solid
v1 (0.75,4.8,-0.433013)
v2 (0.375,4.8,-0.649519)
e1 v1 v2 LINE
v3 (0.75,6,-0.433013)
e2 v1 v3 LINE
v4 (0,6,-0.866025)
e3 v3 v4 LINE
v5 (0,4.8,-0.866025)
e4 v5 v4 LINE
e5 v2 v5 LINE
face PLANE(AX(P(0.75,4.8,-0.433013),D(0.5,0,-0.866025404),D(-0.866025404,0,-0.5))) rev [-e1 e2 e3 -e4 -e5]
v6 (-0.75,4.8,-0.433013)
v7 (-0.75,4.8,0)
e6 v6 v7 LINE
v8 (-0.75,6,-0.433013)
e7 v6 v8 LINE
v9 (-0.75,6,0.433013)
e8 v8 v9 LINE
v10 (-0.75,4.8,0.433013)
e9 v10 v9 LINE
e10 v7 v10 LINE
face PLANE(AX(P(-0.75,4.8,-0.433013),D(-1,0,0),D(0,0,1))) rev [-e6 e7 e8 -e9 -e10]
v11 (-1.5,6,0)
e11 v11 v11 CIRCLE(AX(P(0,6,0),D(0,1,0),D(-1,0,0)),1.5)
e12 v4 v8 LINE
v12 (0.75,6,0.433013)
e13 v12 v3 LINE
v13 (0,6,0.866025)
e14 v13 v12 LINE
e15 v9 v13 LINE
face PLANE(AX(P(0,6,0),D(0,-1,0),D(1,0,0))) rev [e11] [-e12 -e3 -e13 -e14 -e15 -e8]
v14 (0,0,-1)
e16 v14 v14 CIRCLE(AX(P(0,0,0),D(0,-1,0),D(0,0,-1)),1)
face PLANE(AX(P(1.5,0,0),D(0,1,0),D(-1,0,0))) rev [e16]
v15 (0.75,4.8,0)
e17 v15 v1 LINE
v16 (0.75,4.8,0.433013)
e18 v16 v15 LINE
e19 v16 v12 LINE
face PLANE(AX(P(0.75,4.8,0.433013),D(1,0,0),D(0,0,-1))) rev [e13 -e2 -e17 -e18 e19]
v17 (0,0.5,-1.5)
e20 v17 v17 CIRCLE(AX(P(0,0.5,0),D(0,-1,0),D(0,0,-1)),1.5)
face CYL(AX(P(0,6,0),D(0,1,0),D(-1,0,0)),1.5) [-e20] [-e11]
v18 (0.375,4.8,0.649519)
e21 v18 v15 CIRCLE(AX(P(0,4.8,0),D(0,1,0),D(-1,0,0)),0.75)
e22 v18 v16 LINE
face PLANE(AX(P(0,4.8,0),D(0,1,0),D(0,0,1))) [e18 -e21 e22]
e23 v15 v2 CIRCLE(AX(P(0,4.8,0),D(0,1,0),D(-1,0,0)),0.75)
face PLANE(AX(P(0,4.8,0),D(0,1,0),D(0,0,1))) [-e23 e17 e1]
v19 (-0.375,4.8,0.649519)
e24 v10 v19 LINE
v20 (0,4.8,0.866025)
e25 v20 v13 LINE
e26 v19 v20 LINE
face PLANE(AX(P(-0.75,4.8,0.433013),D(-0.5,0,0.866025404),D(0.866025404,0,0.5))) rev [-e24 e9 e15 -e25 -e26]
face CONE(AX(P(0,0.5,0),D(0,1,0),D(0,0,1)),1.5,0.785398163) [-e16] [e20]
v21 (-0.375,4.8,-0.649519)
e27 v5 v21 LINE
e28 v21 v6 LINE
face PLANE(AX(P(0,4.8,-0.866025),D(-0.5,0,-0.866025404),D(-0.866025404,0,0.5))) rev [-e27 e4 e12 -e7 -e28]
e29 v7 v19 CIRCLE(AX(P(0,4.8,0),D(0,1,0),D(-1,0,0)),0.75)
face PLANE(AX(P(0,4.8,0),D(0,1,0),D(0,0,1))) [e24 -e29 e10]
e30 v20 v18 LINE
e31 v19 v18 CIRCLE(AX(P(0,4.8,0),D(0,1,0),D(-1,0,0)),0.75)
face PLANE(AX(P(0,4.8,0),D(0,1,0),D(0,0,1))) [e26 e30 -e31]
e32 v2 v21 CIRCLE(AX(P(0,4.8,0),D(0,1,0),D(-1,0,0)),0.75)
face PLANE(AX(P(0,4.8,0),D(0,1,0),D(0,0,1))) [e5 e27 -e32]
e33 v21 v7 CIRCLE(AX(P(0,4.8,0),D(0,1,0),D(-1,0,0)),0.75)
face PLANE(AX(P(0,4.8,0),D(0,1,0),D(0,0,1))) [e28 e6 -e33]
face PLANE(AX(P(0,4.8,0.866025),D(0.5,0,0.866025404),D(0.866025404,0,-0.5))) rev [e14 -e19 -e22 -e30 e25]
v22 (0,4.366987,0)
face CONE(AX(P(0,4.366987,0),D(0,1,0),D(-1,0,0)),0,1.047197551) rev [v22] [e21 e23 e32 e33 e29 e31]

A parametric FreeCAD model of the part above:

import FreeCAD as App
import Part
import Sketcher

V = App.Vector
Q = App.Units.Quantity


def add_polygon(sketch, points):
    """Adds a closed chain of lines whose ends are joined by coincident constraints."""
    first, n = sketch.GeometryCount, len(points)
    for a, b in zip(points, points[1:] + points[:1]):
        sketch.addGeometry(Part.LineSegment(App.Vector(*a, 0), App.Vector(*b, 0)), False)
    for i in range(n):
        sketch.addConstraint(Sketcher.Constraint("Coincident", first + i, 2, first + (i + 1) % n, 1))

doc = App.newDocument("Part")
body = doc.addObject("PartDesign::Body", "Body")

sketch1 = body.newObject("Sketcher::SketchObject", "Sketch")
sketch1.AttachmentSupport = (doc.getObject("XY_Plane"), [""])
sketch1.MapMode = "FlatFace"
add_polygon(sketch1, [(0, 6), (0, 0), (1.5, 0), (1.5, 6)])
sketch1.addConstraint([
    Sketcher.Constraint("Vertical", 0),
    Sketcher.Constraint("Horizontal", 1),
    Sketcher.Constraint("Vertical", 2),
    Sketcher.Constraint("Horizontal", 3),
    Sketcher.Constraint("Coincident", 0, 2, -1, 1),
    Sketcher.Constraint("DistanceY", 0, 2, 0, 1, Q("6 mm")),
    Sketcher.Constraint("DistanceX", 1, 1, 1, 2, Q("1.5 mm")),
])
revolution = body.newObject("PartDesign::Revolution", "Revolution")
revolution.Profile = sketch1
revolution.ReferenceAxis = (sketch1, ["V_Axis"])
revolution.Angle = 360

sketch2 = body.newObject("Sketcher::SketchObject", "Sketch001")
sketch2.AttachmentSupport = (doc.getObject("XY_Plane"), [""])
sketch2.MapMode = "FlatFace"
add_polygon(sketch2, [(0.8, 6), (0, 6), (0, 4.4), (0.8, 4.8)])
sketch2.addConstraint([
    Sketcher.Constraint("Horizontal", 0),
    Sketcher.Constraint("Vertical", 1),
    Sketcher.Constraint("Vertical", 3),
    Sketcher.Constraint("PointOnObject", 0, 2, -2),
    Sketcher.Constraint("Angle", 2, Q("30 deg")),
    Sketcher.Constraint("DistanceY", 3, 1, 3, 2, Q("1.2 mm")),
    Sketcher.Constraint("DistanceY", -1, 1, 0, 2, Q("6 mm")),
    Sketcher.Constraint("DistanceX", 0, 2, 0, 1, Q("0.75 mm")),
])
groove = body.newObject("PartDesign::Groove", "Groove")
groove.Profile = sketch2
groove.ReferenceAxis = (sketch2, ["V_Axis"])
groove.Angle = 360

sketch3 = body.newObject("Sketcher::SketchObject", "Sketch002")
sketch3.AttachmentSupport = (doc.getObject("XZ_Plane"), [""])
sketch3.MapMode = "FlatFace"
sketch3.AttachmentOffset = App.Placement(V(0, 0, -6), App.Rotation())
add_polygon(sketch3, [(0, -0.9), (-0.8, -0.4), (-0.8, 0.4), (0, 0.9), (0.8, 0.4), (0.8, -0.4)])
sketch3.addConstraint([
    Sketcher.Constraint("Vertical", 1),
    Sketcher.Constraint("Vertical", 4),
    Sketcher.Constraint("Symmetric", 0, 2, 3, 2, -1, 1),
    Sketcher.Constraint("Symmetric", 2, 2, 5, 2, -1, 1),
    Sketcher.Constraint("PointOnObject", 2, 2, -2),
    Sketcher.Constraint("Parallel", 2, 5),
    Sketcher.Constraint("Horizontal", 1, 2, 3, 2),
    Sketcher.Constraint("Angle", 0, Q("150 deg")),
    Sketcher.Constraint("DistanceX", 1, 2, 3, 2, Q("1.5 mm")),
    Sketcher.Constraint("DistanceY", 1, 1, 1, 2, Q("0.866025 mm")),
])
pocket1 = body.newObject("PartDesign::Pocket", "Pocket")
pocket1.Profile = sketch3
pocket1.Length = 1.2
pocket1.Reversed = True

sketch4 = body.newObject("Sketcher::SketchObject", "Sketch003")
sketch4.AttachmentSupport = (doc.getObject("XY_Plane"), [""])
sketch4.MapMode = "FlatFace"
add_polygon(sketch4, [(1, 0), (1.5, 0), (1.5, 0.5)])
sketch4.addConstraint([
    Sketcher.Constraint("Horizontal", 0),
    Sketcher.Constraint("Vertical", 1),
    Sketcher.Constraint("PointOnObject", 0, 2, -1),
    Sketcher.Constraint("Equal", 0, 1),
    Sketcher.Constraint("DistanceX", 0, 1, 0, 2, Q("0.5 mm")),
    Sketcher.Constraint("DistanceX", -1, 1, 2, 2, Q("1 mm")),
])
groove2 = body.newObject("PartDesign::Groove", "Groove001")
groove2.Profile = sketch4
groove2.ReferenceAxis = (sketch4, ["V_Axis"])
groove2.Angle = 360

doc.recompute()
